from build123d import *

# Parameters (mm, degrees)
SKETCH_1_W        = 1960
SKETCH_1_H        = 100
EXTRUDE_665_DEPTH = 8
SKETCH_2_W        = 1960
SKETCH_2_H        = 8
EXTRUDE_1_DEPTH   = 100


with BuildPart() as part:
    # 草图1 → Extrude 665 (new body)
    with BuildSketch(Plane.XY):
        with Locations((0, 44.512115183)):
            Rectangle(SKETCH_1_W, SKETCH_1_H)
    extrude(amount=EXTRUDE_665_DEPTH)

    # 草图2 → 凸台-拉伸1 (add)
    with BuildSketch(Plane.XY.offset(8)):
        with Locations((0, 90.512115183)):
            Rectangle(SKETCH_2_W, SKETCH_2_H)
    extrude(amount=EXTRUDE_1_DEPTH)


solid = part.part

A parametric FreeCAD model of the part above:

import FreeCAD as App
import Part
import Sketcher

V = App.Vector
Q = App.Units.Quantity


def add_polygon(sketch, points):
    """Adds a closed chain of lines whose ends are joined by coincident constraints."""
    first, n = sketch.GeometryCount, len(points)
    for a, b in zip(points, points[1:] + points[:1]):
        sketch.addGeometry(Part.LineSegment(App.Vector(*a, 0), App.Vector(*b, 0)), False)
    for i in range(n):
        sketch.addConstraint(Sketcher.Constraint("Coincident", first + i, 2, first + (i + 1) % n, 1))

doc = App.newDocument("Part")
body = doc.addObject("PartDesign::Body", "Body")

sketch1 = doc.addObject("Sketcher::SketchObject", "Sketch")
body.addObject(sketch1)
sketch1.AttachmentSupport = (doc.XY_Plane, [""])
sketch1.MapMode = "FlatFace"
add_polygon(sketch1, [(-980, 94.512115), (-980, -5.487885), (980, -5.487885), (980, 94.512115)])
sketch1.addConstraint(Sketcher.Constraint("Vertical", 0))
sketch1.addConstraint(Sketcher.Constraint("Horizontal", 1))
sketch1.addConstraint(Sketcher.Constraint("Vertical", 2))
sketch1.addConstraint(Sketcher.Constraint("Horizontal", 3))
sketch1.addConstraint(Sketcher.Constraint("DistanceX", 1, 1, 1, 2, Q("1960 mm")))
sketch1.addConstraint(Sketcher.Constraint("DistanceY", 0, 2, 0, 1, Q("100 mm")))
sketch1.addConstraint(Sketcher.Constraint("DistanceX", 0, 2, -1, 1, Q("980 mm")))
sketch1.addConstraint(Sketcher.Constraint("DistanceY", 0, 2, -1, 1, Q("5.487885 mm")))
pad1 = doc.addObject("PartDesign::Pad", "Pad")
body.addObject(pad1)
pad1.Profile = sketch1
pad1.Length = 8

sketch2 = doc.addObject("Sketcher::SketchObject", "Sketch001")
body.addObject(sketch2)
sketch2.AttachmentSupport = (doc.XY_Plane, [""])
sketch2.MapMode = "FlatFace"
sketch2.AttachmentOffset = App.Placement(V(0, 0, 8), App.Rotation())
add_polygon(sketch2, [(-980, 94.512115), (-980, 86.512115), (980, 86.512115), (980, 94.512115)])
sketch2.addConstraint(Sketcher.Constraint("Vertical", 0))
sketch2.addConstraint(Sketcher.Constraint("Horizontal", 1))
sketch2.addConstraint(Sketcher.Constraint("Vertical", 2))
sketch2.addConstraint(Sketcher.Constraint("Horizontal", 3))
sketch2.addConstraint(Sketcher.Constraint("DistanceX", 1, 1, 1, 2, Q("1960 mm")))
sketch2.addConstraint(Sketcher.Constraint("DistanceY", 0, 2, 0, 1, Q("8 mm")))
sketch2.addConstraint(Sketcher.Constraint("DistanceX", 0, 2, -1, 1, Q("980 mm")))
sketch2.addConstraint(Sketcher.Constraint("DistanceY", -1, 1, 0, 2, Q("86.512115 mm")))
pad2 = doc.addObject("PartDesign::Pad", "Pad001")
body.addObject(pad2)
pad2.Profile = sketch2
pad2.Length = 100

doc.recompute()
